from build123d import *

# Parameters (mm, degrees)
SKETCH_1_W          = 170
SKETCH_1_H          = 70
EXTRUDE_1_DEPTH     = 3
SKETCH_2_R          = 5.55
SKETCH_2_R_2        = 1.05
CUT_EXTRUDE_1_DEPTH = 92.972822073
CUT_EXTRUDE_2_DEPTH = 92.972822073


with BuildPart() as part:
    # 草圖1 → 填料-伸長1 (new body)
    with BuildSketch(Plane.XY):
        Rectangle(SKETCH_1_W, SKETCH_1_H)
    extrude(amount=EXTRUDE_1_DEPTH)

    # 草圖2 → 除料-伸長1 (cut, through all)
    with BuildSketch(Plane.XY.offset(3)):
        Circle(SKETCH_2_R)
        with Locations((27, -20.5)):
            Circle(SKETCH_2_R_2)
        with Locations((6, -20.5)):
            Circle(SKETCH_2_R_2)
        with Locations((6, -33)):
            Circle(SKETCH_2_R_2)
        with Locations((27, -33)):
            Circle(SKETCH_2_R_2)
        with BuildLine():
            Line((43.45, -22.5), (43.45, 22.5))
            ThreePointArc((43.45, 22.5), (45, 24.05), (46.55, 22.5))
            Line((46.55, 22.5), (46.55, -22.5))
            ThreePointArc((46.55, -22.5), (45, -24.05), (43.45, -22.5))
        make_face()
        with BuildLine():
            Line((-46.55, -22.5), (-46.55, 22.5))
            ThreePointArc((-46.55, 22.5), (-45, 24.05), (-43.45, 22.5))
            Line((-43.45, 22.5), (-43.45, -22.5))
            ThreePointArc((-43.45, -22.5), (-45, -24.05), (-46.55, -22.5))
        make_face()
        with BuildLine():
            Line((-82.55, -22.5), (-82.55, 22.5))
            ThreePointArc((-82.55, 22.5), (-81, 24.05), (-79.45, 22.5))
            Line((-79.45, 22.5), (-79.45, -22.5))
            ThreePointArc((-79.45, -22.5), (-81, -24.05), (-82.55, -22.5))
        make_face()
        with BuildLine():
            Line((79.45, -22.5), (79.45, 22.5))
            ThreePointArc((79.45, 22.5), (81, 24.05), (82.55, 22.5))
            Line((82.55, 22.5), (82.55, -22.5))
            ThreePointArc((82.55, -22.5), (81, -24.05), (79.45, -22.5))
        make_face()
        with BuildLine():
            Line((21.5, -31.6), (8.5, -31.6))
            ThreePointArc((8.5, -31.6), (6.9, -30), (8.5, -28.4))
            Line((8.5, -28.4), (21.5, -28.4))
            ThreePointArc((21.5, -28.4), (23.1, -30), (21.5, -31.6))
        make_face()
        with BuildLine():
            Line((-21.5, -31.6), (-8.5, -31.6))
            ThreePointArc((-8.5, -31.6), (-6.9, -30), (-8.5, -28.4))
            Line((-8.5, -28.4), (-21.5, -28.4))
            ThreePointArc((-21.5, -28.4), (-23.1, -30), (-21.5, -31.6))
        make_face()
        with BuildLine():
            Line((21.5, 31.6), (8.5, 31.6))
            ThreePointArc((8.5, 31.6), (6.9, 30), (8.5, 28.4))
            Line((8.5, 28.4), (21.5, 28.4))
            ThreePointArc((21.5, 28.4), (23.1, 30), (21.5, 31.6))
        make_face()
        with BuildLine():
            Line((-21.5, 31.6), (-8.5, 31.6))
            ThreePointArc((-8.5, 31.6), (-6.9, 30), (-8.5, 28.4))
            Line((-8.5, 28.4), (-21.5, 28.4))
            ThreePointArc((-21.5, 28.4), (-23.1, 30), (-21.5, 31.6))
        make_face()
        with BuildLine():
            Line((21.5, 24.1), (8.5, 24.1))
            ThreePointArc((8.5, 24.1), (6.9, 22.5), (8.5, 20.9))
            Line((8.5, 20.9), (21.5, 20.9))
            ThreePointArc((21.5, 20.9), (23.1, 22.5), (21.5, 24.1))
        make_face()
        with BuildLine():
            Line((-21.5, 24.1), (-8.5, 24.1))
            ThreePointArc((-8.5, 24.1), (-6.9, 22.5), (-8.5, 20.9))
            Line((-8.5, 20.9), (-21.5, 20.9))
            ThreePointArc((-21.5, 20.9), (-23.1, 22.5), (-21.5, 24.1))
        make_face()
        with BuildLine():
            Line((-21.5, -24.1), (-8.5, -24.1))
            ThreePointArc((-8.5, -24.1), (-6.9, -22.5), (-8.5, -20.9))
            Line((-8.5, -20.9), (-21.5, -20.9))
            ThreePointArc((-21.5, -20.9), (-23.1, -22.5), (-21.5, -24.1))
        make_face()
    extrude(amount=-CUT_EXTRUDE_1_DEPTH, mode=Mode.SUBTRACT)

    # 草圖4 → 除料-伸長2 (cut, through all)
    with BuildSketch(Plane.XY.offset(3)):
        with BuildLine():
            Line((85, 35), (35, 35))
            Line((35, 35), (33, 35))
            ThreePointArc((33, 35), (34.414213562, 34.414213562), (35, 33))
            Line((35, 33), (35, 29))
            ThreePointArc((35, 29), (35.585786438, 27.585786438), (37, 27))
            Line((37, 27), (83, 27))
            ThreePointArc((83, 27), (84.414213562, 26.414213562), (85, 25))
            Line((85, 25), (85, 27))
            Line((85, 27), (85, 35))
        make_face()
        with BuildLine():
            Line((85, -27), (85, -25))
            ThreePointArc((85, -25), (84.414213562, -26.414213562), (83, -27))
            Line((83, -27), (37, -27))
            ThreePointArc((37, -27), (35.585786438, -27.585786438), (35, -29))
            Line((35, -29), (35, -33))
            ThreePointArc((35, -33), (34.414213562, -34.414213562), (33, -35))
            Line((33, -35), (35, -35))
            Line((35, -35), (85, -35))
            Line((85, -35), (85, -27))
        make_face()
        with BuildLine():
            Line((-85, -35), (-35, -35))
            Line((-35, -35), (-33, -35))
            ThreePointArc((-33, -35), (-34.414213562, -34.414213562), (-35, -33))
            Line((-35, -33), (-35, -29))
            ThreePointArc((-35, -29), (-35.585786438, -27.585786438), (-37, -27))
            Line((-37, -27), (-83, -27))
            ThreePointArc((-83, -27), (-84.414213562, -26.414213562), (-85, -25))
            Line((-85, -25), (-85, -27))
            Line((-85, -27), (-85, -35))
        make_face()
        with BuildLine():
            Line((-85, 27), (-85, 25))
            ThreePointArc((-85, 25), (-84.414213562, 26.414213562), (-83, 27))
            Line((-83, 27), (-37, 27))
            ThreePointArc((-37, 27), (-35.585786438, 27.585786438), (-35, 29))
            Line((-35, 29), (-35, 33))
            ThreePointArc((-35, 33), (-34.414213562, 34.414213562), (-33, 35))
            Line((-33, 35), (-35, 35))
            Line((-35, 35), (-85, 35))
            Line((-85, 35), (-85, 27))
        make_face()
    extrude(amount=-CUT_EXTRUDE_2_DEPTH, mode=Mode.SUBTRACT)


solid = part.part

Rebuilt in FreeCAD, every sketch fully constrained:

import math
import FreeCAD as App
import Part
import Sketcher

V = App.Vector


def add_polygon(sketch, points):
    """Adds a closed chain of lines whose ends are joined by coincident constraints."""
    first, n = sketch.GeometryCount, len(points)
    for a, b in zip(points, points[1:] + points[:1]):
        sketch.addGeometry(Part.LineSegment(App.Vector(*a, 0), App.Vector(*b, 0)), False)
    for i in range(n):
        sketch.addConstraint(Sketcher.Constraint("Coincident", first + i, 2, first + (i + 1) % n, 1))

doc = App.newDocument("Part")
body = doc.addObject("PartDesign::Body", "Body")

# Sketch on XY plane
sketch1 = body.newObject("Sketcher::SketchObject", "Sketch")
sketch1.AttachmentSupport = (doc.getObject("XY_Plane"), [""])
sketch1.MapMode = "FlatFace"
add_polygon(sketch1, [(-85, 35), (-85, -35), (85, -35), (85, 35)])  # lines 0-3
sketch1.addConstraint([
    Sketcher.Constraint("Vertical", 0),
    Sketcher.Constraint("Horizontal", 1),
    Sketcher.Constraint("Vertical", 2),
    Sketcher.Constraint("Horizontal", 3),
    Sketcher.Constraint("Symmetric", 0, 2, 2, 2, -1, 1),
    Sketcher.Constraint("DistanceX", 1, 1, 1, 2, 170.0),
    Sketcher.Constraint("DistanceY", 0, 2, 0, 1, 70.0),
])
pad1 = body.newObject("PartDesign::Pad", "Pad")
pad1.Profile = sketch1
pad1.Length = 3

# Sketch on XY plane
sketch2 = body.newObject("Sketcher::SketchObject", "Sketch001")
sketch2.AttachmentSupport = (doc.getObject("XY_Plane"), [""])
sketch2.MapMode = "FlatFace"
sketch2.AttachmentOffset = App.Placement(V(0, 0, 3), App.Rotation())
sketch2.addGeometry([
    Part.Circle(V(0, 0, 0), V(0, 0, 1), 5.55),  # 0
    Part.Circle(V(27, -20.5, 0), V(0, 0, 1), 1.05),  # 1
    Part.Circle(V(6, -20.5, 0), V(0, 0, 1), 1.05),  # 2
    Part.Circle(V(6, -33, 0), V(0, 0, 1), 1.05),  # 3
    Part.Circle(V(27, -33, 0), V(0, 0, 1), 1.05),  # 4
    Part.LineSegment(V(43.45, 22.5, 0), V(43.45, -22.5, 0)),  # 5
    Part.ArcOfCircle(Part.Circle(V(45, -22.5, 0), V(0, 0, 1), 1.55), math.radians(180), math.radians(360)),  # 6
    Part.LineSegment(V(46.55, -22.5, 0), V(46.55, 22.5, 0)),  # 7
    Part.ArcOfCircle(Part.Circle(V(45, 22.5, 0), V(0, 0, 1), 1.55), math.radians(0), math.radians(180)),  # 8
    Part.LineSegment(V(-46.55, 22.5, 0), V(-46.55, -22.5, 0)),  # 9
    Part.ArcOfCircle(Part.Circle(V(-45, -22.5, 0), V(0, 0, 1), 1.55), math.radians(180), math.radians(360)),  # 10
    Part.LineSegment(V(-43.45, -22.5, 0), V(-43.45, 22.5, 0)),  # 11
    Part.ArcOfCircle(Part.Circle(V(-45, 22.5, 0), V(0, 0, 1), 1.55), math.radians(0), math.radians(180)),  # 12
    Part.LineSegment(V(-82.55, 22.5, 0), V(-82.55, -22.5, 0)),  # 13
    Part.ArcOfCircle(Part.Circle(V(-81, -22.5, 0), V(0, 0, 1), 1.55), math.radians(180), math.radians(360)),  # 14
    Part.LineSegment(V(-79.45, -22.5, 0), V(-79.45, 22.5, 0)),  # 15
    Part.ArcOfCircle(Part.Circle(V(-81, 22.5, 0), V(0, 0, 1), 1.55), math.radians(0), math.radians(180)),  # 16
    Part.LineSegment(V(79.45, 22.5, 0), V(79.45, -22.5, 0)),  # 17
    Part.ArcOfCircle(Part.Circle(V(81, -22.5, 0), V(0, 0, 1), 1.55), math.radians(180), math.radians(360)),  # 18
    Part.LineSegment(V(82.55, -22.5, 0), V(82.55, 22.5, 0)),  # 19
    Part.ArcOfCircle(Part.Circle(V(81, 22.5, 0), V(0, 0, 1), 1.55), math.radians(0), math.radians(180)),  # 20
    Part.LineSegment(V(8.5, -31.6, 0), V(21.5, -31.6, 0)),  # 21
    Part.ArcOfCircle(Part.Circle(V(21.5, -30, 0), V(0, 0, 1), 1.6), math.radians(-90), math.radians(90)),  # 22
    Part.LineSegment(V(21.5, -28.4, 0), V(8.5, -28.4, 0)),  # 23
    Part.ArcOfCircle(Part.Circle(V(8.5, -30, 0), V(0, 0, 1), 1.6), math.radians(90), math.radians(270)),  # 24
    Part.LineSegment(V(-21.5, -31.6, 0), V(-8.5, -31.6, 0)),  # 25
    Part.ArcOfCircle(Part.Circle(V(-8.5, -30, 0), V(0, 0, 1), 1.6), math.radians(-90), math.radians(90)),  # 26
    Part.LineSegment(V(-8.5, -28.4, 0), V(-21.5, -28.4, 0)),  # 27
    Part.ArcOfCircle(Part.Circle(V(-21.5, -30, 0), V(0, 0, 1), 1.6), math.radians(90), math.radians(270)),  # 28
    Part.LineSegment(V(21.5, 31.6, 0), V(8.5, 31.6, 0)),  # 29
    Part.ArcOfCircle(Part.Circle(V(8.5, 30, 0), V(0, 0, 1), 1.6), math.radians(90), math.radians(270)),  # 30
    Part.LineSegment(V(8.5, 28.4, 0), V(21.5, 28.4, 0)),  # 31
    Part.ArcOfCircle(Part.Circle(V(21.5, 30, 0), V(0, 0, 1), 1.6), math.radians(-90), math.radians(90)),  # 32
    Part.LineSegment(V(-8.5, 31.6, 0), V(-21.5, 31.6, 0)),  # 33
    Part.ArcOfCircle(Part.Circle(V(-21.5, 30, 0), V(0, 0, 1), 1.6), math.radians(90), math.radians(270)),  # 34
    Part.LineSegment(V(-21.5, 28.4, 0), V(-8.5, 28.4, 0)),  # 35
    Part.ArcOfCircle(Part.Circle(V(-8.5, 30, 0), V(0, 0, 1), 1.6), math.radians(-90), math.radians(90)),  # 36
    Part.LineSegment(V(21.5, 24.1, 0), V(8.5, 24.1, 0)),  # 37
    Part.ArcOfCircle(Part.Circle(V(8.5, 22.5, 0), V(0, 0, 1), 1.6), math.radians(90), math.radians(270)),  # 38
    Part.LineSegment(V(8.5, 20.9, 0), V(21.5, 20.9, 0)),  # 39
    Part.ArcOfCircle(Part.Circle(V(21.5, 22.5, 0), V(0, 0, 1), 1.6), math.radians(-90), math.radians(90)),  # 40
    Part.LineSegment(V(-8.5, 24.1, 0), V(-21.5, 24.1, 0)),  # 41
    Part.ArcOfCircle(Part.Circle(V(-21.5, 22.5, 0), V(0, 0, 1), 1.6), math.radians(90), math.radians(270)),  # 42
    Part.LineSegment(V(-21.5, 20.9, 0), V(-8.5, 20.9, 0)),  # 43
    Part.ArcOfCircle(Part.Circle(V(-8.5, 22.5, 0), V(0, 0, 1), 1.6), math.radians(-90), math.radians(90)),  # 44
    Part.LineSegment(V(-21.5, -24.1, 0), V(-8.5, -24.1, 0)),  # 45
    Part.ArcOfCircle(Part.Circle(V(-8.5, -22.5, 0), V(0, 0, 1), 1.6), math.radians(-90), math.radians(90)),  # 46
    Part.LineSegment(V(-8.5, -20.9, 0), V(-21.5, -20.9, 0)),  # 47
    Part.ArcOfCircle(Part.Circle(V(-21.5, -22.5, 0), V(0, 0, 1), 1.6), math.radians(90), math.radians(270)),  # 48
], False)
sketch2.addConstraint([
    Sketcher.Constraint("Tangent", 5, 2, 6, 1),
    Sketcher.Constraint("Tangent", 6, 2, 7, 1),
    Sketcher.Constraint("Tangent", 7, 2, 8, 1),
    Sketcher.Constraint("Tangent", 8, 2, 5, 1),
    Sketcher.Constraint("Tangent", 9, 2, 10, 1),
    Sketcher.Constraint("Tangent", 10, 2, 11, 1),
    Sketcher.Constraint("Tangent", 11, 2, 12, 1),
    Sketcher.Constraint("Tangent", 12, 2, 9, 1),
    Sketcher.Constraint("Tangent", 13, 2, 14, 1),
    Sketcher.Constraint("Tangent", 14, 2, 15, 1),
    Sketcher.Constraint("Tangent", 15, 2, 16, 1),
    Sketcher.Constraint("Tangent", 16, 2, 13, 1),
    Sketcher.Constraint("Tangent", 17, 2, 18, 1),
    Sketcher.Constraint("Tangent", 18, 2, 19, 1),
    Sketcher.Constraint("Tangent", 19, 2, 20, 1),
    Sketcher.Constraint("Tangent", 20, 2, 17, 1),
    Sketcher.Constraint("Tangent", 21, 2, 22, 1),
    Sketcher.Constraint("Tangent", 22, 2, 23, 1),
    Sketcher.Constraint("Tangent", 23, 2, 24, 1),
    Sketcher.Constraint("Tangent", 24, 2, 21, 1),
    Sketcher.Constraint("Tangent", 25, 2, 26, 1),
    Sketcher.Constraint("Tangent", 26, 2, 27, 1),
    Sketcher.Constraint("Tangent", 27, 2, 28, 1),
    Sketcher.Constraint("Tangent", 28, 2, 25, 1),
    Sketcher.Constraint("Tangent", 29, 2, 30, 1),
    Sketcher.Constraint("Tangent", 30, 2, 31, 1),
    Sketcher.Constraint("Tangent", 31, 2, 32, 1),
    Sketcher.Constraint("Tangent", 32, 2, 29, 1),
    Sketcher.Constraint("Tangent", 33, 2, 34, 1),
    Sketcher.Constraint("Tangent", 34, 2, 35, 1),
    Sketcher.Constraint("Tangent", 35, 2, 36, 1),
    Sketcher.Constraint("Tangent", 36, 2, 33, 1),
    Sketcher.Constraint("Tangent", 37, 2, 38, 1),
    Sketcher.Constraint("Tangent", 38, 2, 39, 1),
    Sketcher.Constraint("Tangent", 39, 2, 40, 1),
    Sketcher.Constraint("Tangent", 40, 2, 37, 1),
    Sketcher.Constraint("Tangent", 41, 2, 42, 1),
    Sketcher.Constraint("Tangent", 42, 2, 43, 1),
    Sketcher.Constraint("Tangent", 43, 2, 44, 1),
    Sketcher.Constraint("Tangent", 44, 2, 41, 1),
    Sketcher.Constraint("Tangent", 45, 2, 46, 1),
    Sketcher.Constraint("Tangent", 46, 2, 47, 1),
    Sketcher.Constraint("Tangent", 47, 2, 48, 1),
    Sketcher.Constraint("Tangent", 48, 2, 45, 1),
    Sketcher.Constraint("Vertical", 5),
    Sketcher.Constraint("Vertical", 7),
    Sketcher.Constraint("Vertical", 9),
    Sketcher.Constraint("Vertical", 11),
    Sketcher.Constraint("Vertical", 13),
    Sketcher.Constraint("Vertical", 15),
    Sketcher.Constraint("Vertical", 17),
    Sketcher.Constraint("Vertical", 19),
    Sketcher.Constraint("Horizontal", 21),
    Sketcher.Constraint("Horizontal", 23),
    Sketcher.Constraint("Horizontal", 25),
    Sketcher.Constraint("Horizontal", 27),
    Sketcher.Constraint("Horizontal", 29),
    Sketcher.Constraint("Horizontal", 31),
    Sketcher.Constraint("Horizontal", 33),
    Sketcher.Constraint("Horizontal", 35),
    Sketcher.Constraint("Horizontal", 37),
    Sketcher.Constraint("Horizontal", 39),
    Sketcher.Constraint("Horizontal", 41),
    Sketcher.Constraint("Horizontal", 43),
    Sketcher.Constraint("Horizontal", 45),
    Sketcher.Constraint("Horizontal", 47),
    Sketcher.Constraint("Coincident", 0, 3, -1, 1),
    Sketcher.Constraint("Equal", 1, 2),
    Sketcher.Constraint("Equal", 2, 3),
    Sketcher.Constraint("Equal", 3, 4),
    Sketcher.Constraint("Equal", 8, 10),
    Sketcher.Constraint("Equal", 12, 14),
    Sketcher.Constraint("Equal", 16, 18),
    Sketcher.Constraint("Equal", 24, 26),
    Sketcher.Constraint("Equal", 28, 30),
    Sketcher.Constraint("Equal", 32, 34),
    Sketcher.Constraint("Equal", 36, 38),
    Sketcher.Constraint("Equal", 40, 42),
    Sketcher.Constraint("Equal", 44, 46),
    Sketcher.Constraint("Symmetric", 8, 3, 10, 3, -1, 1),
    Sketcher.Constraint("Symmetric", 16, 3, 18, 3, -1, 1),
    Sketcher.Constraint("Symmetric", 26, 3, 30, 3, -1, 1),
    Sketcher.Constraint("Symmetric", 22, 3, 34, 3, -1, 1),
    Sketcher.Constraint("Symmetric", 38, 3, 46, 3, -1, 1),
    Sketcher.Constraint("Symmetric", 24, 3, 26, 3, -2),
    Sketcher.Constraint("Symmetric", 40, 3, 42, 3, -2),
    Sketcher.Constraint("Horizontal", 1, 3, 2, 3),
    Sketcher.Constraint("Horizontal", 3, 3, 4, 3),
    Sketcher.Constraint("Horizontal", 6, 3, 10, 3),
    Sketcher.Constraint("Horizontal", 8, 3, 12, 3),
    Sketcher.Constraint("Horizontal", 10, 3, 14, 3),
    Sketcher.Constraint("Horizontal", 12, 3, 16, 3),
    Sketcher.Constraint("Horizontal", 16, 3, 20, 3),
    Sketcher.Constraint("Horizontal", 20, 3, 38, 3),
    Sketcher.Constraint("Vertical", 2, 3, 3, 3),
    Sketcher.Constraint("Vertical", 1, 3, 4, 3),
    Sketcher.Constraint("Vertical", 22, 3, 32, 3),
    Sketcher.Constraint("Vertical", 28, 3, 34, 3),
    Sketcher.Constraint("Vertical", 26, 3, 36, 3),
    Sketcher.Constraint("Vertical", 30, 3, 38, 3),
    Sketcher.Constraint("Vertical", 32, 3, 40, 3),
    Sketcher.Constraint("Vertical", 36, 3, 44, 3),
    Sketcher.Constraint("Vertical", 42, 3, 48, 3),
    Sketcher.Constraint("Diameter", 0, 11.1),
    Sketcher.Constraint("Diameter", 1, 2.1),
    Sketcher.Constraint("Radius", 22, 1.6),
    Sketcher.Constraint("DistanceX", 21, 1, 21, 2, 13.0),
    Sketcher.Constraint("DistanceY", 5, 2, 5, 1, 45.0),
    Sketcher.Constraint("Radius", 6, 1.55),
    Sketcher.Constraint("DistanceX", -1, 1, 1, 3, 27.0),
    Sketcher.Constraint("DistanceX", -1, 1, 2, 3, 6.0),
    Sketcher.Constraint("DistanceY", 3, 3, -1, 1, 33.0),
    Sketcher.Constraint("DistanceX", -1, 1, 6, 3, 45.0),
    Sketcher.Constraint("DistanceX", 14, 3, -1, 1, 81.0),
    Sketcher.Constraint("DistanceY", 22, 3, -1, 1, 30.0),
    Sketcher.Constraint("DistanceY", 1, 3, -1, 1, 20.5),
    Sketcher.Constraint("DistanceX", -1, 1, 22, 3, 21.5),
])
pocket1 = body.newObject("PartDesign::Pocket", "Pocket")
pocket1.Profile = sketch2
pocket1.Type = "ThroughAll"

# Sketch on XY plane
sketch3 = body.newObject("Sketcher::SketchObject", "Sketch002")
sketch3.AttachmentSupport = (doc.getObject("XY_Plane"), [""])
sketch3.MapMode = "FlatFace"
sketch3.AttachmentOffset = App.Placement(V(0, 0, 3), App.Rotation())
sketch3.addGeometry([
    Part.LineSegment(V(85, 35, 0), V(33, 35, 0)),  # 0
    Part.ArcOfCircle(Part.Circle(V(33, 33, 0), V(0, 0, 1), 2), math.radians(0), math.radians(90)),  # 1
    Part.LineSegment(V(35, 33, 0), V(35, 29, 0)),  # 2
    Part.ArcOfCircle(Part.Circle(V(37, 29, 0), V(0, 0, 1), 2), math.radians(-180), math.radians(-90)),  # 3
    Part.LineSegment(V(37, 27, 0), V(83, 27, 0)),  # 4
    Part.ArcOfCircle(Part.Circle(V(83, 25, 0), V(0, 0, 1), 2), math.radians(0), math.radians(90)),  # 5
    Part.LineSegment(V(85, 25, 0), V(85, 35, 0)),  # 6
    Part.ArcOfCircle(Part.Circle(V(83, -25, 0), V(0, 0, 1), 2), math.radians(-90), math.radians(0)),  # 7
    Part.LineSegment(V(83, -27, 0), V(37, -27, 0)),  # 8
    Part.ArcOfCircle(Part.Circle(V(37, -29, 0), V(0, 0, 1), 2), math.radians(90), math.radians(180)),  # 9
    Part.LineSegment(V(35, -29, 0), V(35, -33, 0)),  # 10
    Part.ArcOfCircle(Part.Circle(V(33, -33, 0), V(0, 0, 1), 2), math.radians(-90), math.radians(0)),  # 11
    Part.LineSegment(V(33, -35, 0), V(85, -35, 0)),  # 12
    Part.LineSegment(V(85, -35, 0), V(85, -25, 0)),  # 13
    Part.LineSegment(V(-85, -35, 0), V(-33, -35, 0)),  # 14
    Part.ArcOfCircle(Part.Circle(V(-33, -33, 0), V(0, 0, 1), 2), math.radians(-180), math.radians(-90)),  # 15
    Part.LineSegment(V(-35, -33, 0), V(-35, -29, 0)),  # 16
    Part.ArcOfCircle(Part.Circle(V(-37, -29, 0), V(0, 0, 1), 2), math.radians(0), math.radians(90)),  # 17
    Part.LineSegment(V(-37, -27, 0), V(-83, -27, 0)),  # 18
    Part.ArcOfCircle(Part.Circle(V(-83, -25, 0), V(0, 0, 1), 2), math.radians(-180), math.radians(-90)),  # 19
    Part.LineSegment(V(-85, -25, 0), V(-85, -35, 0)),  # 20
    Part.ArcOfCircle(Part.Circle(V(-83, 25, 0), V(0, 0, 1), 2), math.radians(90), math.radians(180)),  # 21
    Part.LineSegment(V(-83, 27, 0), V(-37, 27, 0)),  # 22
    Part.ArcOfCircle(Part.Circle(V(-37, 29, 0), V(0, 0, 1), 2), math.radians(-90), math.radians(0)),  # 23
    Part.LineSegment(V(-35, 29, 0), V(-35, 33, 0)),  # 24
    Part.ArcOfCircle(Part.Circle(V(-33, 33, 0), V(0, 0, 1), 2), math.radians(90), math.radians(180)),  # 25
    Part.LineSegment(V(-33, 35, 0), V(-85, 35, 0)),  # 26
    Part.LineSegment(V(-85, 35, 0), V(-85, 25, 0)),  # 27
], False)
sketch3.addConstraint([
    Sketcher.Constraint("Tangent", 0, 2, 1, 2),
    Sketcher.Constraint("Tangent", 1, 1, 2, 1),
    Sketcher.Constraint("Tangent", 2, 2, 3, 1),
    Sketcher.Constraint("Tangent", 3, 2, 4, 1),
    Sketcher.Constraint("Tangent", 4, 2, 5, 2),
    Sketcher.Constraint("Tangent", 5, 1, 6, 1),
    Sketcher.Constraint("Coincident", 6, 2, 0, 1),
    Sketcher.Constraint("Tangent", 7, 1, 8, 1),
    Sketcher.Constraint("Tangent", 8, 2, 9, 1),
    Sketcher.Constraint("Tangent", 9, 2, 10, 1),
    Sketcher.Constraint("Tangent", 10, 2, 11, 2),
    Sketcher.Constraint("Tangent", 11, 1, 12, 1),
    Sketcher.Constraint("Coincident", 12, 2, 13, 1),
    Sketcher.Constraint("Tangent", 13, 2, 7, 2),
    Sketcher.Constraint("Tangent", 14, 2, 15, 2),
    Sketcher.Constraint("Tangent", 15, 1, 16, 1),
    Sketcher.Constraint("Tangent", 16, 2, 17, 1),
    Sketcher.Constraint("Tangent", 17, 2, 18, 1),
    Sketcher.Constraint("Tangent", 18, 2, 19, 2),
    Sketcher.Constraint("Tangent", 19, 1, 20, 1),
    Sketcher.Constraint("Coincident", 20, 2, 14, 1),
    Sketcher.Constraint("Tangent", 21, 1, 22, 1),
    Sketcher.Constraint("Tangent", 22, 2, 23, 1),
    Sketcher.Constraint("Tangent", 23, 2, 24, 1),
    Sketcher.Constraint("Tangent", 24, 2, 25, 2),
    Sketcher.Constraint("Tangent", 25, 1, 26, 1),
    Sketcher.Constraint("Coincident", 26, 2, 27, 1),
    Sketcher.Constraint("Tangent", 27, 2, 21, 2),
    Sketcher.Constraint("Horizontal", 0),
    Sketcher.Constraint("Vertical", 2),
    Sketcher.Constraint("Horizontal", 4),
    Sketcher.Constraint("Vertical", 6),
    Sketcher.Constraint("Horizontal", 8),
    Sketcher.Constraint("Vertical", 10),
    Sketcher.Constraint("Horizontal", 12),
    Sketcher.Constraint("Vertical", 13),
    Sketcher.Constraint("Horizontal", 14),
    Sketcher.Constraint("Vertical", 16),
    Sketcher.Constraint("Horizontal", 18),
    Sketcher.Constraint("Vertical", 20),
    Sketcher.Constraint("Horizontal", 22),
    Sketcher.Constraint("Vertical", 24),
    Sketcher.Constraint("Horizontal", 26),
    Sketcher.Constraint("Vertical", 27),
    Sketcher.Constraint("Equal", 1, 3),
    Sketcher.Constraint("Equal", 3, 5),
    Sketcher.Constraint("Equal", 5, 7),
    Sketcher.Constraint("Equal", 7, 9),
    Sketcher.Constraint("Equal", 9, 11),
    Sketcher.Constraint("Equal", 11, 15),
    Sketcher.Constraint("Equal", 15, 17),
    Sketcher.Constraint("Equal", 17, 19),
    Sketcher.Constraint("Equal", 19, 21),
    Sketcher.Constraint("Equal", 21, 23),
    Sketcher.Constraint("Equal", 23, 25),
    Sketcher.Constraint("Symmetric", 1, 3, 15, 3, -1, 1),
    Sketcher.Constraint("Symmetric", 5, 3, 19, 3, -1, 1),
    Sketcher.Constraint("Symmetric", 7, 3, 21, 3, -1, 1),
    Sketcher.Constraint("Symmetric", 11, 3, 25, 3, -1, 1),
    Sketcher.Constraint("Symmetric", 11, 3, 15, 3, -2),
    Sketcher.Constraint("Symmetric", 7, 3, 19, 3, -2),
    Sketcher.Constraint("Radius", 1, 2.0),
    Sketcher.Constraint("DistanceX", 0, 2, 0, 1, 52.0),
    Sketcher.Constraint("DistanceY", 2, 2, 2, 1, 4.0),
    Sketcher.Constraint("DistanceX", -1, 1, 1, 3, 33.0),
    Sketcher.Constraint("DistanceY", -1, 1, 1, 3, 33.0),
])
pocket2 = body.newObject("PartDesign::Pocket", "Pocket001")
pocket2.Profile = sketch3
pocket2.Type = "ThroughAll"

doc.recompute()
